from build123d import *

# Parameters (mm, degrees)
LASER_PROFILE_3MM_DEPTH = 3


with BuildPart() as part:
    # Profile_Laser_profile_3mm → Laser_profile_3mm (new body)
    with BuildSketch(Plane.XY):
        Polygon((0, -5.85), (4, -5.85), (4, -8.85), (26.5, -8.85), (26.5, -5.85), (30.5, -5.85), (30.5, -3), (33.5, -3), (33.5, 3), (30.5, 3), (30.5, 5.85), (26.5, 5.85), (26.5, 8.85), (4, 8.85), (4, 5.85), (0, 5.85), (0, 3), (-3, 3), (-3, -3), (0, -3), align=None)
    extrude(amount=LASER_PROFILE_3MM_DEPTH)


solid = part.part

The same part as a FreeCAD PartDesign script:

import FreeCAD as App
import Part
import Sketcher

V = App.Vector
Q = App.Units.Quantity


def add_polygon(sketch, points):
    """Adds a closed chain of lines whose ends are joined by coincident constraints."""
    first, n = sketch.GeometryCount, len(points)
    for a, b in zip(points, points[1:] + points[:1]):
        sketch.addGeometry(Part.LineSegment(App.Vector(*a, 0), App.Vector(*b, 0)), False)
    for i in range(n):
        sketch.addConstraint(Sketcher.Constraint("Coincident", first + i, 2, first + (i + 1) % n, 1))

doc = App.newDocument("Part")
body = doc.addObject("PartDesign::Body", "Body")

sketch1 = body.newObject("Sketcher::SketchObject", "Sketch")
sketch1.AttachmentSupport = (doc.getObject("XY_Plane"), [""])
sketch1.MapMode = "FlatFace"
add_polygon(sketch1, [(0, -5.8), (4, -5.8), (4, -8.8), (26.5, -8.8), (26.5, -5.8), (30.5, -5.8), (30.5, -3), (33.5, -3), (33.5, 3), (30.5, 3), (30.5, 5.8), (26.5, 5.8), (26.5, 8.8), (4, 8.8), (4, 5.8), (0, 5.8), (0, 3), (-3, 3), (-3, -3), (0, -3)])
sketch1.addConstraint(Sketcher.Constraint("Horizontal", 0))
sketch1.addConstraint(Sketcher.Constraint("Vertical", 1))
sketch1.addConstraint(Sketcher.Constraint("Horizontal", 2))
sketch1.addConstraint(Sketcher.Constraint("Vertical", 3))
sketch1.addConstraint(Sketcher.Constraint("Horizontal", 4))
sketch1.addConstraint(Sketcher.Constraint("Vertical", 5))
sketch1.addConstraint(Sketcher.Constraint("Horizontal", 6))
sketch1.addConstraint(Sketcher.Constraint("Vertical", 7))
sketch1.addConstraint(Sketcher.Constraint("Horizontal", 8))
sketch1.addConstraint(Sketcher.Constraint("Vertical", 9))
sketch1.addConstraint(Sketcher.Constraint("Horizontal", 10))
sketch1.addConstraint(Sketcher.Constraint("Vertical", 11))
sketch1.addConstraint(Sketcher.Constraint("Horizontal", 12))
sketch1.addConstraint(Sketcher.Constraint("Vertical", 13))
sketch1.addConstraint(Sketcher.Constraint("Horizontal", 14))
sketch1.addConstraint(Sketcher.Constraint("Vertical", 15))
sketch1.addConstraint(Sketcher.Constraint("Horizontal", 16))
sketch1.addConstraint(Sketcher.Constraint("Vertical", 17))
sketch1.addConstraint(Sketcher.Constraint("Horizontal", 18))
sketch1.addConstraint(Sketcher.Constraint("Vertical", 19))
sketch1.addConstraint(Sketcher.Constraint("Symmetric", 15, 2, 18, 2, -1, 1))
sketch1.addConstraint(Sketcher.Constraint("Symmetric", 5, 2, 8, 2, -1))
sketch1.addConstraint(Sketcher.Constraint("Symmetric", 3, 2, 10, 2, -1))
sketch1.addConstraint(Sketcher.Constraint("Symmetric", 1, 2, 12, 2, -1))
sketch1.addConstraint(Sketcher.Constraint("Symmetric", 14, 2, 19, 2, -1))
sketch1.addConstraint(Sketcher.Constraint("Horizontal", 0, 2, 3, 2))
sketch1.addConstraint(Sketcher.Constraint("Horizontal", 8, 2, 15, 2))
sketch1.addConstraint(Sketcher.Constraint("Equal", 0, 4))
sketch1.addConstraint(Sketcher.Constraint("Equal", 8, 16))
sketch1.addConstraint(Sketcher.Constraint("Equal", 18, 1))
sketch1.addConstraint(Sketcher.Constraint("DistanceX", 0, 1, 0, 2, Q("4 mm")))
sketch1.addConstraint(Sketcher.Constraint("DistanceX", 6, 1, 6, 2, Q("3 mm")))
sketch1.addConstraint(Sketcher.Constraint("DistanceY", 7, 1, 7, 2, Q("6 mm")))
sketch1.addConstraint(Sketcher.Constraint("DistanceX", 2, 1, 2, 2, Q("22.5 mm")))
sketch1.addConstraint(Sketcher.Constraint("DistanceY", 5, 1, 5, 2, Q("2.85 mm")))
pad1 = body.newObject("PartDesign::Pad", "Pad")
pad1.Profile = sketch1
pad1.Length = 3

doc.recompute()
